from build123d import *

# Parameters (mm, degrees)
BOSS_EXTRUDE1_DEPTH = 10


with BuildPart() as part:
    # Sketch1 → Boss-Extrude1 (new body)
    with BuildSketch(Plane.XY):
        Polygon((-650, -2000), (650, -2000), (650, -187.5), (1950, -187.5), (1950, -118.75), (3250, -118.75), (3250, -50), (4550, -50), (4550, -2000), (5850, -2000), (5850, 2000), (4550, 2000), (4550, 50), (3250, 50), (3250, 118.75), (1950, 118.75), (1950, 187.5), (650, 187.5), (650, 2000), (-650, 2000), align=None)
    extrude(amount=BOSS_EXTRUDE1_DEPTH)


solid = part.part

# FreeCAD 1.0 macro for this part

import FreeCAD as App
import Part
import Sketcher

V = App.Vector


def add_polygon(sketch, points):
    """Adds a closed chain of lines whose ends are joined by coincident constraints."""
    first, n = sketch.GeometryCount, len(points)
    for a, b in zip(points, points[1:] + points[:1]):
        sketch.addGeometry(Part.LineSegment(App.Vector(*a, 0), App.Vector(*b, 0)), False)
    for i in range(n):
        sketch.addConstraint(Sketcher.Constraint("Coincident", first + i, 2, first + (i + 1) % n, 1))

doc = App.newDocument("Part")
params = doc.addObject("Spreadsheet::Sheet", "Params")
for row, (alias, value) in enumerate([
    ("sketch1_width", "1300 mm"),
    ("sketch1_height", "1950 mm"),
    ("sketch1_height2", "4000 mm"),
    ("sketch1_height3", "1812.5 mm"),
    ("pad1_length", "10 mm"),
], start=1):
    params.set(f"A{row}", alias)
    params.set(f"B{row}", "=" + value)
    params.setAlias(f"B{row}", alias)

body = doc.addObject("PartDesign::Body", "Body")

# Sketch on XY plane
sketch1 = body.newObject("Sketcher::SketchObject", "Sketch")
sketch1.AttachmentSupport = (doc.getObject("XY_Plane"), [""])
sketch1.MapMode = "FlatFace"
add_polygon(sketch1, [(-650, -2000), (650, -2000), (650, -187.5), (1950, -187.5), (1950, -118.75), (3250, -118.75), (3250, -50), (4550, -50), (4550, -2000), (5850, -2000), (5850, 2000), (4550, 2000), (4550, 50), (3250, 50), (3250, 118.75), (1950, 118.75), (1950, 187.5), (650, 187.5), (650, 2000), (-650, 2000)])  # lines 0-19
sketch1.addConstraint([
    Sketcher.Constraint("Horizontal", 0),
    Sketcher.Constraint("Vertical", 1),
    Sketcher.Constraint("Horizontal", 2),
    Sketcher.Constraint("Vertical", 3),
    Sketcher.Constraint("Horizontal", 4),
    Sketcher.Constraint("Vertical", 5),
    Sketcher.Constraint("Horizontal", 6),
    Sketcher.Constraint("Vertical", 7),
    Sketcher.Constraint("Horizontal", 8),
    Sketcher.Constraint("Vertical", 9),
    Sketcher.Constraint("Horizontal", 10),
    Sketcher.Constraint("Vertical", 11),
    Sketcher.Constraint("Horizontal", 12),
    Sketcher.Constraint("Vertical", 13),
    Sketcher.Constraint("Horizontal", 14),
    Sketcher.Constraint("Vertical", 15),
    Sketcher.Constraint("Horizontal", 16),
    Sketcher.Constraint("Vertical", 17),
    Sketcher.Constraint("Horizontal", 18),
    Sketcher.Constraint("Vertical", 19),
    Sketcher.Constraint("Symmetric", 0, 2, 18, 2, -1, 1),
    Sketcher.Constraint("Symmetric", 7, 2, 10, 2, -1),
    Sketcher.Constraint("Symmetric", 5, 2, 12, 2, -1),
    Sketcher.Constraint("Symmetric", 3, 2, 14, 2, -1),
    Sketcher.Constraint("Symmetric", 1, 2, 16, 2, -1),
    Sketcher.Constraint("Horizontal", 0, 2, 7, 2),
    Sketcher.Constraint("Equal", 0, 2),
    Sketcher.Constraint("Equal", 2, 4),
    Sketcher.Constraint("Equal", 4, 6),
    Sketcher.Constraint("Equal", 6, 8),
    Sketcher.Constraint("Equal", 3, 5),
    Sketcher.Constraint("DistanceX", 0, 1, 0, 2, 1300.0),
    Sketcher.Constraint("DistanceY", 7, 2, 7, 1, 1950.0),
    Sketcher.Constraint("DistanceY", 9, 1, 9, 2, 4000.0),
    Sketcher.Constraint("DistanceY", 1, 1, 1, 2, 1812.5),
])
sketch1.setExpression("Constraints[51]", "Params.sketch1_width")
sketch1.setExpression("Constraints[52]", "Params.sketch1_height")
sketch1.setExpression("Constraints[53]", "Params.sketch1_height2")
sketch1.setExpression("Constraints[54]", "Params.sketch1_height3")
pad1 = body.newObject("PartDesign::Pad", "Pad")
pad1.Profile = sketch1
pad1.setExpression("Length", "Params.pad1_length")

doc.recompute()
